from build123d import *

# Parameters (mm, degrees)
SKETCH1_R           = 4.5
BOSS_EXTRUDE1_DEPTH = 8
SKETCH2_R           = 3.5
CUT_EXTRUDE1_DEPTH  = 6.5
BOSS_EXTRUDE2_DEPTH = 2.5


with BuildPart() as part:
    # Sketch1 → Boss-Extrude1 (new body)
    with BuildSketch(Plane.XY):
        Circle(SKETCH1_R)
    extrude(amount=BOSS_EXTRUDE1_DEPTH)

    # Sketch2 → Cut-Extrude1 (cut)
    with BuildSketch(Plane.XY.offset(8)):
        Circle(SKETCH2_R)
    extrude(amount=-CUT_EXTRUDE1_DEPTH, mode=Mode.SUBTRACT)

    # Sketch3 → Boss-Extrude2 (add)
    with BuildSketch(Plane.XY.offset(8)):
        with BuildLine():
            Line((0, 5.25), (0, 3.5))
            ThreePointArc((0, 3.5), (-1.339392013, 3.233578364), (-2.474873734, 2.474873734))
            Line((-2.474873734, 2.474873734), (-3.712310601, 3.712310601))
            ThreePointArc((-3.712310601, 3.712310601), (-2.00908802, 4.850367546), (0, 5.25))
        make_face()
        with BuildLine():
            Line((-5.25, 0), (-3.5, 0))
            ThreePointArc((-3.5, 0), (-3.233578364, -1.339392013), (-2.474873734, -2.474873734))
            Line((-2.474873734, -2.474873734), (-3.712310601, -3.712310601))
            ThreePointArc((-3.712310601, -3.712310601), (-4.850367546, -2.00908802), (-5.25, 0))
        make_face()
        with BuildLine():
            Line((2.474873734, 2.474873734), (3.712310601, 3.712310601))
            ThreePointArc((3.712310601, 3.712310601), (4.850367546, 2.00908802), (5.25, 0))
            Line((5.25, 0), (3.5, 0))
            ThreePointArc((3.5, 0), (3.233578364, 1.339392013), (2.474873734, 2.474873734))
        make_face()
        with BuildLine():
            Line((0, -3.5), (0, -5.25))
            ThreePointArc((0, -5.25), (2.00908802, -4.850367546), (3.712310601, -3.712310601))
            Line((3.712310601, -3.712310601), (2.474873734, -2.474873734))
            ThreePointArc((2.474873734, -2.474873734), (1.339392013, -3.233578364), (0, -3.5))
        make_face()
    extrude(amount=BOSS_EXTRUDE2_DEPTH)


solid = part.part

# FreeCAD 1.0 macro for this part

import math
import FreeCAD as App
import Part
import Sketcher

V = App.Vector

doc = App.newDocument("Part")
params = doc.addObject("Spreadsheet::Sheet", "Params")
for row, (alias, value) in enumerate([
    ("sketch1_diameter", "9 mm"),
    ("pad1_length", "8 mm"),
    ("sketch2_diameter", "7 mm"),
    ("pocket1_length", "6.5 mm"),
    ("sketch3_radius", "3.5 mm"),
    ("sketch3_radius2", "5.25 mm"),
    ("pad2_length", "2.5 mm"),
], start=1):
    params.set(f"A{row}", alias)
    params.set(f"B{row}", "=" + value)
    params.setAlias(f"B{row}", alias)

body = doc.addObject("PartDesign::Body", "Body")

# Sketch on XY plane
sketch1 = body.newObject("Sketcher::SketchObject", "Sketch")
sketch1.AttachmentSupport = (doc.getObject("XY_Plane"), [""])
sketch1.MapMode = "FlatFace"
sketch1.addGeometry(Part.Circle(V(0, 0, 0), V(0, 0, 1), 4.5), False)
sketch1.addConstraint(Sketcher.Constraint("Coincident", 0, 3, -1, 1))
sketch1.addConstraint(Sketcher.Constraint("Diameter", 0, 9.0))
sketch1.setExpression("Constraints[1]", "Params.sketch1_diameter")
pad1 = body.newObject("PartDesign::Pad", "Pad")
pad1.Profile = sketch1
pad1.setExpression("Length", "Params.pad1_length")

# Sketch on XY plane
sketch2 = body.newObject("Sketcher::SketchObject", "Sketch001")
sketch2.AttachmentSupport = (doc.getObject("XY_Plane"), [""])
sketch2.MapMode = "FlatFace"
sketch2.AttachmentOffset = App.Placement(V(0, 0, 8), App.Rotation())
sketch2.addGeometry(Part.Circle(V(0, 0, 0), V(0, 0, 1), 3.5), False)
sketch2.addConstraint(Sketcher.Constraint("Coincident", 0, 3, -1, 1))
sketch2.addConstraint(Sketcher.Constraint("Diameter", 0, 7.0))
sketch2.setExpression("Constraints[1]", "Params.sketch2_diameter")
pocket1 = body.newObject("PartDesign::Pocket", "Pocket")
pocket1.Profile = sketch2
pocket1.setExpression("Length", "Params.pocket1_length")

# Sketch on XY plane
sketch3 = body.newObject("Sketcher::SketchObject", "Sketch002")
sketch3.AttachmentSupport = (doc.getObject("XY_Plane"), [""])
sketch3.MapMode = "FlatFace"
sketch3.AttachmentOffset = App.Placement(V(0, 0, 8), App.Rotation())
sketch3.addGeometry(Part.LineSegment(V(0, 3.5, 0), V(0, 5.2, 0)), False)
sketch3.addGeometry(Part.ArcOfCircle(Part.Circle(V(0, 0, 0), V(0, 0, 1), 5.2), math.radians(90), math.radians(135)), False)
sketch3.addGeometry(Part.LineSegment(V(-3.7, 3.7, 0), V(-2.5, 2.5, 0)), False)
sketch3.addGeometry(Part.ArcOfCircle(Part.Circle(V(0, 0, 0), V(0, 0, 1), 3.5), math.radians(90), math.radians(135)), False)
sketch3.addGeometry(Part.LineSegment(V(-3.5, 0, 0), V(-5.2, 0, 0)), False)
sketch3.addGeometry(Part.ArcOfCircle(Part.Circle(V(0, 0, 0), V(0, 0, 1), 5.2), math.radians(180), math.radians(225)), False)
sketch3.addGeometry(Part.LineSegment(V(-3.7, -3.7, 0), V(-2.5, -2.5, 0)), False)
sketch3.addGeometry(Part.ArcOfCircle(Part.Circle(V(0, 0, 0), V(0, 0, 1), 3.5), math.radians(180), math.radians(225)), False)
sketch3.addGeometry(Part.LineSegment(V(3.7, 3.7, 0), V(2.5, 2.5, 0)), False)
sketch3.addGeometry(Part.ArcOfCircle(Part.Circle(V(0, 0, 0), V(0, 0, 1), 3.5), math.radians(0), math.radians(45)), False)
sketch3.addGeometry(Part.LineSegment(V(3.5, 0, 0), V(5.2, 0, 0)), False)
sketch3.addGeometry(Part.ArcOfCircle(Part.Circle(V(0, 0, 0), V(0, 0, 1), 5.2), math.radians(0), math.radians(45)), False)
sketch3.addGeometry(Part.LineSegment(V(0, -3.5, 0), V(0, -5.2, 0)), False)
sketch3.addGeometry(Part.ArcOfCircle(Part.Circle(V(0, 0, 0), V(0, 0, 1), 5.2), math.radians(-90), math.radians(-45)), False)
sketch3.addGeometry(Part.LineSegment(V(3.7, -3.7, 0), V(2.5, -2.5, 0)), False)
sketch3.addGeometry(Part.ArcOfCircle(Part.Circle(V(0, 0, 0), V(0, 0, 1), 3.5), math.radians(-90), math.radians(-45)), False)
sketch3.addConstraint(Sketcher.Constraint("Coincident", 0, 2, 1, 1))
sketch3.addConstraint(Sketcher.Constraint("Coincident", 1, 2, 2, 1))
sketch3.addConstraint(Sketcher.Constraint("Coincident", 2, 2, 3, 2))
sketch3.addConstraint(Sketcher.Constraint("Coincident", 3, 1, 0, 1))
sketch3.addConstraint(Sketcher.Constraint("Coincident", 4, 2, 5, 1))
sketch3.addConstraint(Sketcher.Constraint("Coincident", 5, 2, 6, 1))
sketch3.addConstraint(Sketcher.Constraint("Coincident", 6, 2, 7, 2))
sketch3.addConstraint(Sketcher.Constraint("Coincident", 7, 1, 4, 1))
sketch3.addConstraint(Sketcher.Constraint("Coincident", 8, 2, 9, 2))
sketch3.addConstraint(Sketcher.Constraint("Coincident", 9, 1, 10, 1))
sketch3.addConstraint(Sketcher.Constraint("Coincident", 10, 2, 11, 1))
sketch3.addConstraint(Sketcher.Constraint("Coincident", 11, 2, 8, 1))
sketch3.addConstraint(Sketcher.Constraint("Coincident", 12, 2, 13, 1))
sketch3.addConstraint(Sketcher.Constraint("Coincident", 13, 2, 14, 1))
sketch3.addConstraint(Sketcher.Constraint("Coincident", 14, 2, 15, 2))
sketch3.addConstraint(Sketcher.Constraint("Coincident", 15, 1, 12, 1))
sketch3.addConstraint(Sketcher.Constraint("Vertical", 0))
sketch3.addConstraint(Sketcher.Constraint("Horizontal", 4))
sketch3.addConstraint(Sketcher.Constraint("Horizontal", 10))
sketch3.addConstraint(Sketcher.Constraint("Vertical", 12))
sketch3.addConstraint(Sketcher.Constraint("Coincident", 1, 3, -1, 1))
sketch3.addConstraint(Sketcher.Constraint("Coincident", 3, 3, -1, 1))
sketch3.addConstraint(Sketcher.Constraint("Coincident", 5, 3, -1, 1))
sketch3.addConstraint(Sketcher.Constraint("Coincident", 7, 3, -1, 1))
sketch3.addConstraint(Sketcher.Constraint("Coincident", 9, 3, -1, 1))
sketch3.addConstraint(Sketcher.Constraint("Coincident", 11, 3, -1, 1))
sketch3.addConstraint(Sketcher.Constraint("Coincident", 13, 3, -1, 1))
sketch3.addConstraint(Sketcher.Constraint("Coincident", 15, 3, -1, 1))
sketch3.addConstraint(Sketcher.Constraint("Equal", 1, 5))
sketch3.addConstraint(Sketcher.Constraint("Equal", 3, 7))
sketch3.addConstraint(Sketcher.Constraint("Equal", 7, 9))
sketch3.addConstraint(Sketcher.Constraint("Equal", 5, 11))
sketch3.addConstraint(Sketcher.Constraint("Equal", 11, 13))
sketch3.addConstraint(Sketcher.Constraint("Equal", 9, 15))
sketch3.addConstraint(Sketcher.Constraint("PointOnObject", 0, 2, -2))
sketch3.addConstraint(Sketcher.Constraint("PointOnObject", 4, 2, -1))
sketch3.addConstraint(Sketcher.Constraint("PointOnObject", 9, 1, -1))
sketch3.addConstraint(Sketcher.Constraint("PointOnObject", 12, 2, -2))
sketch3.addConstraint(Sketcher.Constraint("Perpendicular", 2, 6))
sketch3.addConstraint(Sketcher.Constraint("Parallel", 6, 8))
sketch3.addConstraint(Sketcher.Constraint("Perpendicular", 8, 14))
sketch3.addConstraint(Sketcher.Constraint("Horizontal", 2, 2, 8, 2))
sketch3.addConstraint(Sketcher.Constraint("Horizontal", 1, 2, 11, 2))
sketch3.addConstraint(Sketcher.Constraint("Horizontal", 5, 2, 13, 2))
sketch3.addConstraint(Sketcher.Constraint("Vertical", 1, 2, 5, 2))
sketch3.addConstraint(Sketcher.Constraint("Radius", 3, 3.5))
sketch3.addConstraint(Sketcher.Constraint("Radius", 1, 5.25))
sketch3.addConstraint(Sketcher.Constraint("DistanceX", 1, 2, -1, 1, 3.712311))
sketch3.setExpression("Constraints[45]", "Params.sketch3_radius")
sketch3.setExpression("Constraints[46]", "Params.sketch3_radius2")
pad2 = body.newObject("PartDesign::Pad", "Pad001")
pad2.Profile = sketch3
pad2.setExpression("Length", "Params.pad2_length")

doc.recompute()
